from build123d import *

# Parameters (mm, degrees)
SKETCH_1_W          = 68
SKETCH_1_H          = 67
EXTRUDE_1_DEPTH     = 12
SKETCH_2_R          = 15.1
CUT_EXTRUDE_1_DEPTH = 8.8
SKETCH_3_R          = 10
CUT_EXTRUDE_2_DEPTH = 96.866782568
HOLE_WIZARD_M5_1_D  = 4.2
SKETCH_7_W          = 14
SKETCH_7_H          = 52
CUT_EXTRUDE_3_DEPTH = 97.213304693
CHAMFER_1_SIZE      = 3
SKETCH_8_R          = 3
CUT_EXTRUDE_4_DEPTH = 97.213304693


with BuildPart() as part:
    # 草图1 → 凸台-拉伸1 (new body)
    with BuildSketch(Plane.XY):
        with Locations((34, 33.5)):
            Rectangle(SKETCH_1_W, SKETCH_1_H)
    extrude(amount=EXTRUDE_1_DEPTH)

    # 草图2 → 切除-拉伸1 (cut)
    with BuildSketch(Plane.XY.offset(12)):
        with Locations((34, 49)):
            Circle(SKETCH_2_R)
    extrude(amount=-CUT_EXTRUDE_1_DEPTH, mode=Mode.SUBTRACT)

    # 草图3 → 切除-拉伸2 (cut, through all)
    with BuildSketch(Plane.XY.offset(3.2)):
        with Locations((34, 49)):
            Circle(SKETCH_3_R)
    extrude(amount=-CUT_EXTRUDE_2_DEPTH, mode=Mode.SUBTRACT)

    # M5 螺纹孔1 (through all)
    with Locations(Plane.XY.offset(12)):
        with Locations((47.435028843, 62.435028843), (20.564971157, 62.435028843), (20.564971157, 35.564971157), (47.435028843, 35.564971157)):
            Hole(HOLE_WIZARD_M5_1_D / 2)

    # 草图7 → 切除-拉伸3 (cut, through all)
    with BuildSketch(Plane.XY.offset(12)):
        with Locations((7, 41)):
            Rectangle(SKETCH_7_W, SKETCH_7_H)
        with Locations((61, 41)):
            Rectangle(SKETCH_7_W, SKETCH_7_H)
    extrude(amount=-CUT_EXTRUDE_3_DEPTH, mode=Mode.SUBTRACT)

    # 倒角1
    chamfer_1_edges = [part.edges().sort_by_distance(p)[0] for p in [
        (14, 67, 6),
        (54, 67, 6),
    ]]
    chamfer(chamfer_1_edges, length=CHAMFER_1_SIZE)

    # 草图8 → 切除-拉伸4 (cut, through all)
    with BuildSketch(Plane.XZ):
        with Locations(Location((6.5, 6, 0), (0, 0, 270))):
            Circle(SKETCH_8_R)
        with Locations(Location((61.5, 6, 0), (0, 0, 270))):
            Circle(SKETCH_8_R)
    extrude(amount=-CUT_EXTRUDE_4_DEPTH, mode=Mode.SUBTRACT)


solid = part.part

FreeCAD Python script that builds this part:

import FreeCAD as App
import Part
import Sketcher
from FreeCAD import Vector
Q = App.Units.Quantity


def edges_at(feature, points):
    """Names of the edges that pass closest to the given points."""
    edges = feature.Shape.Edges
    near = lambda p: min(range(len(edges)), key=lambda i: edges[i].distToShape(Part.Vertex(*p))[0])
    return sorted({f"Edge{near(p) + 1}" for p in points})


def add_polygon(sketch, points):
    """Adds a closed chain of lines whose ends are joined by coincident constraints."""
    first, n = sketch.GeometryCount, len(points)
    for a, b in zip(points, points[1:] + points[:1]):
        sketch.addGeometry(Part.LineSegment(App.Vector(*a, 0), App.Vector(*b, 0)), False)
    for i in range(n):
        sketch.addConstraint(Sketcher.Constraint("Coincident", first + i, 2, first + (i + 1) % n, 1))

doc = App.newDocument("Part")
body = doc.addObject("PartDesign::Body", "Body")

# Sketch on XY plane
sketch1 = body.newObject("Sketcher::SketchObject", "Sketch")
sketch1.AttachmentSupport = (doc.getObject("XY_Plane"), [""])
sketch1.MapMode = "FlatFace"
add_polygon(sketch1, [(0, 67), (0, 0), (68, 0), (68, 67)])  # lines 0-3
sketch1.addConstraint(Sketcher.Constraint("Vertical", 0))
sketch1.addConstraint(Sketcher.Constraint("Horizontal", 1))
sketch1.addConstraint(Sketcher.Constraint("Vertical", 2))
sketch1.addConstraint(Sketcher.Constraint("Horizontal", 3))
sketch1.addConstraint(Sketcher.Constraint("Coincident", 0, 2, -1, 1))
sketch1.addConstraint(Sketcher.Constraint("DistanceX", 1, 1, 1, 2, Q("68 mm")))
sketch1.addConstraint(Sketcher.Constraint("DistanceY", 0, 2, 0, 1, Q("67 mm")))
pad1 = body.newObject("PartDesign::Pad", "Pad")
pad1.Profile = sketch1
pad1.Length = 12

# Sketch on XY plane
sketch2 = body.newObject("Sketcher::SketchObject", "Sketch001")
sketch2.AttachmentSupport = (doc.getObject("XY_Plane"), [""])
sketch2.MapMode = "FlatFace"
sketch2.AttachmentOffset = App.Placement(Vector(0, 0, 12), App.Rotation())
sketch2.addGeometry(Part.Circle(Vector(34, 49, 0), Vector(0, 0, 1), 15), False)
sketch2.addConstraint(Sketcher.Constraint("Diameter", 0, Q("30.2 mm")))
sketch2.addConstraint(Sketcher.Constraint("DistanceX", -1, 1, 0, 3, Q("34 mm")))
sketch2.addConstraint(Sketcher.Constraint("DistanceY", -1, 1, 0, 3, Q("49 mm")))
pocket1 = body.newObject("PartDesign::Pocket", "Pocket")
pocket1.Profile = sketch2
pocket1.Length = 8.8

# Sketch on XY plane
sketch3 = body.newObject("Sketcher::SketchObject", "Sketch002")
sketch3.AttachmentSupport = (doc.getObject("XY_Plane"), [""])
sketch3.MapMode = "FlatFace"
sketch3.AttachmentOffset = App.Placement(Vector(0, 0, 3.2), App.Rotation())
sketch3.addGeometry(Part.Circle(Vector(34, 49, 0), Vector(0, 0, 1), 10), False)
sketch3.addConstraint(Sketcher.Constraint("Diameter", 0, Q("20 mm")))
sketch3.addConstraint(Sketcher.Constraint("DistanceX", -1, 1, 0, 3, Q("34 mm")))
sketch3.addConstraint(Sketcher.Constraint("DistanceY", -1, 1, 0, 3, Q("49 mm")))
pocket2 = body.newObject("PartDesign::Pocket", "Pocket001")
pocket2.Profile = sketch3
pocket2.Type = "ThroughAll"

# Sketch on XY plane
sketch4 = body.newObject("Sketcher::SketchObject", "Sketch003")
sketch4.AttachmentSupport = (doc.getObject("XY_Plane"), [""])
sketch4.MapMode = "FlatFace"
sketch4.AttachmentOffset = App.Placement(Vector(0, 0, 12), App.Rotation())
sketch4.addGeometry(Part.Circle(Vector(47.4, 62.4, 0), Vector(0, 0, 1), 2.1), False)
sketch4.addGeometry(Part.Circle(Vector(20.6, 62.4, 0), Vector(0, 0, 1), 2.1), False)
sketch4.addGeometry(Part.Circle(Vector(20.6, 35.6, 0), Vector(0, 0, 1), 2.1), False)
sketch4.addGeometry(Part.Circle(Vector(47.4, 35.6, 0), Vector(0, 0, 1), 2.1), False)
sketch4.addConstraint(Sketcher.Constraint("Equal", 0, 1))
sketch4.addConstraint(Sketcher.Constraint("Equal", 1, 2))
sketch4.addConstraint(Sketcher.Constraint("Equal", 2, 3))
sketch4.addConstraint(Sketcher.Constraint("Horizontal", 0, 3, 1, 3))
sketch4.addConstraint(Sketcher.Constraint("Horizontal", 2, 3, 3, 3))
sketch4.addConstraint(Sketcher.Constraint("Vertical", 1, 3, 2, 3))
sketch4.addConstraint(Sketcher.Constraint("Vertical", 0, 3, 3, 3))
sketch4.addConstraint(Sketcher.Constraint("Diameter", 0, Q("4.2 mm")))
sketch4.addConstraint(Sketcher.Constraint("DistanceX", -1, 1, 0, 3, Q("47.435029 mm")))
sketch4.addConstraint(Sketcher.Constraint("DistanceY", -1, 1, 0, 3, Q("62.435029 mm")))
sketch4.addConstraint(Sketcher.Constraint("DistanceX", -1, 1, 1, 3, Q("20.564971 mm")))
sketch4.addConstraint(Sketcher.Constraint("DistanceY", -1, 1, 2, 3, Q("35.564971 mm")))
doc.recompute()
hole = body.newObject("PartDesign::Hole", "Hole")
hole.Profile = sketch4
hole.ThreadType = "None"
hole.Diameter = 4.2
hole.DepthType = "ThroughAll"

# Sketch on XY plane
sketch5 = body.newObject("Sketcher::SketchObject", "Sketch004")
sketch5.AttachmentSupport = (doc.getObject("XY_Plane"), [""])
sketch5.MapMode = "FlatFace"
sketch5.AttachmentOffset = App.Placement(Vector(0, 0, 12), App.Rotation())
add_polygon(sketch5, [(0, 67), (0, 15), (14, 15), (14, 67)])  # lines 0-3
add_polygon(sketch5, [(54, 67), (54, 15), (68, 15), (68, 67)])  # lines 4-7
sketch5.addConstraint(Sketcher.Constraint("Vertical", 0))
sketch5.addConstraint(Sketcher.Constraint("Horizontal", 1))
sketch5.addConstraint(Sketcher.Constraint("Vertical", 2))
sketch5.addConstraint(Sketcher.Constraint("Horizontal", 3))
sketch5.addConstraint(Sketcher.Constraint("Vertical", 4))
sketch5.addConstraint(Sketcher.Constraint("Horizontal", 5))
sketch5.addConstraint(Sketcher.Constraint("Vertical", 6))
sketch5.addConstraint(Sketcher.Constraint("Horizontal", 7))
sketch5.addConstraint(Sketcher.Constraint("PointOnObject", 0, 2, -2))
sketch5.addConstraint(Sketcher.Constraint("Horizontal", 1, 2, 4, 2))
sketch5.addConstraint(Sketcher.Constraint("Horizontal", 3, 2, 6, 2))
sketch5.addConstraint(Sketcher.Constraint("Equal", 3, 5))
sketch5.addConstraint(Sketcher.Constraint("DistanceX", 1, 1, 1, 2, Q("14 mm")))
sketch5.addConstraint(Sketcher.Constraint("DistanceY", 0, 2, 0, 1, Q("52 mm")))
sketch5.addConstraint(Sketcher.Constraint("DistanceY", -1, 1, 0, 2, Q("15 mm")))
sketch5.addConstraint(Sketcher.Constraint("DistanceX", -1, 1, 4, 2, Q("54 mm")))
pocket3 = body.newObject("PartDesign::Pocket", "Pocket002")
pocket3.Profile = sketch5
pocket3.Type = "ThroughAll"
doc.recompute()

chamfer = body.newObject("PartDesign::Chamfer", "Chamfer")
chamfer.Base = (pocket3, edges_at(pocket3, [(14, 67, 6), (54, 67, 6)]))
chamfer.Size = 3

# Sketch on XZ plane
sketch6 = body.newObject("Sketcher::SketchObject", "Sketch005")
sketch6.AttachmentSupport = (doc.getObject("XZ_Plane"), [""])
sketch6.MapMode = "FlatFace"
sketch6.addGeometry(Part.Circle(Vector(6.5, 6, 0), Vector(0, 0, 1), 3), False)
sketch6.addGeometry(Part.Circle(Vector(61.5, 6, 0), Vector(0, 0, 1), 3), False)
sketch6.addConstraint(Sketcher.Constraint("Equal", 0, 1))
sketch6.addConstraint(Sketcher.Constraint("Horizontal", 0, 3, 1, 3))
sketch6.addConstraint(Sketcher.Constraint("Diameter", 0, Q("6 mm")))
sketch6.addConstraint(Sketcher.Constraint("DistanceY", -1, 1, 0, 3, Q("6 mm")))
sketch6.addConstraint(Sketcher.Constraint("DistanceX", 0, 3, 1, 3, Q("55 mm")))
sketch6.addConstraint(Sketcher.Constraint("DistanceX", -1, 1, 0, 3, Q("6.5 mm")))
pocket4 = body.newObject("PartDesign::Pocket", "Pocket003")
pocket4.Profile = sketch6
pocket4.Type = "ThroughAll"

doc.recompute()
